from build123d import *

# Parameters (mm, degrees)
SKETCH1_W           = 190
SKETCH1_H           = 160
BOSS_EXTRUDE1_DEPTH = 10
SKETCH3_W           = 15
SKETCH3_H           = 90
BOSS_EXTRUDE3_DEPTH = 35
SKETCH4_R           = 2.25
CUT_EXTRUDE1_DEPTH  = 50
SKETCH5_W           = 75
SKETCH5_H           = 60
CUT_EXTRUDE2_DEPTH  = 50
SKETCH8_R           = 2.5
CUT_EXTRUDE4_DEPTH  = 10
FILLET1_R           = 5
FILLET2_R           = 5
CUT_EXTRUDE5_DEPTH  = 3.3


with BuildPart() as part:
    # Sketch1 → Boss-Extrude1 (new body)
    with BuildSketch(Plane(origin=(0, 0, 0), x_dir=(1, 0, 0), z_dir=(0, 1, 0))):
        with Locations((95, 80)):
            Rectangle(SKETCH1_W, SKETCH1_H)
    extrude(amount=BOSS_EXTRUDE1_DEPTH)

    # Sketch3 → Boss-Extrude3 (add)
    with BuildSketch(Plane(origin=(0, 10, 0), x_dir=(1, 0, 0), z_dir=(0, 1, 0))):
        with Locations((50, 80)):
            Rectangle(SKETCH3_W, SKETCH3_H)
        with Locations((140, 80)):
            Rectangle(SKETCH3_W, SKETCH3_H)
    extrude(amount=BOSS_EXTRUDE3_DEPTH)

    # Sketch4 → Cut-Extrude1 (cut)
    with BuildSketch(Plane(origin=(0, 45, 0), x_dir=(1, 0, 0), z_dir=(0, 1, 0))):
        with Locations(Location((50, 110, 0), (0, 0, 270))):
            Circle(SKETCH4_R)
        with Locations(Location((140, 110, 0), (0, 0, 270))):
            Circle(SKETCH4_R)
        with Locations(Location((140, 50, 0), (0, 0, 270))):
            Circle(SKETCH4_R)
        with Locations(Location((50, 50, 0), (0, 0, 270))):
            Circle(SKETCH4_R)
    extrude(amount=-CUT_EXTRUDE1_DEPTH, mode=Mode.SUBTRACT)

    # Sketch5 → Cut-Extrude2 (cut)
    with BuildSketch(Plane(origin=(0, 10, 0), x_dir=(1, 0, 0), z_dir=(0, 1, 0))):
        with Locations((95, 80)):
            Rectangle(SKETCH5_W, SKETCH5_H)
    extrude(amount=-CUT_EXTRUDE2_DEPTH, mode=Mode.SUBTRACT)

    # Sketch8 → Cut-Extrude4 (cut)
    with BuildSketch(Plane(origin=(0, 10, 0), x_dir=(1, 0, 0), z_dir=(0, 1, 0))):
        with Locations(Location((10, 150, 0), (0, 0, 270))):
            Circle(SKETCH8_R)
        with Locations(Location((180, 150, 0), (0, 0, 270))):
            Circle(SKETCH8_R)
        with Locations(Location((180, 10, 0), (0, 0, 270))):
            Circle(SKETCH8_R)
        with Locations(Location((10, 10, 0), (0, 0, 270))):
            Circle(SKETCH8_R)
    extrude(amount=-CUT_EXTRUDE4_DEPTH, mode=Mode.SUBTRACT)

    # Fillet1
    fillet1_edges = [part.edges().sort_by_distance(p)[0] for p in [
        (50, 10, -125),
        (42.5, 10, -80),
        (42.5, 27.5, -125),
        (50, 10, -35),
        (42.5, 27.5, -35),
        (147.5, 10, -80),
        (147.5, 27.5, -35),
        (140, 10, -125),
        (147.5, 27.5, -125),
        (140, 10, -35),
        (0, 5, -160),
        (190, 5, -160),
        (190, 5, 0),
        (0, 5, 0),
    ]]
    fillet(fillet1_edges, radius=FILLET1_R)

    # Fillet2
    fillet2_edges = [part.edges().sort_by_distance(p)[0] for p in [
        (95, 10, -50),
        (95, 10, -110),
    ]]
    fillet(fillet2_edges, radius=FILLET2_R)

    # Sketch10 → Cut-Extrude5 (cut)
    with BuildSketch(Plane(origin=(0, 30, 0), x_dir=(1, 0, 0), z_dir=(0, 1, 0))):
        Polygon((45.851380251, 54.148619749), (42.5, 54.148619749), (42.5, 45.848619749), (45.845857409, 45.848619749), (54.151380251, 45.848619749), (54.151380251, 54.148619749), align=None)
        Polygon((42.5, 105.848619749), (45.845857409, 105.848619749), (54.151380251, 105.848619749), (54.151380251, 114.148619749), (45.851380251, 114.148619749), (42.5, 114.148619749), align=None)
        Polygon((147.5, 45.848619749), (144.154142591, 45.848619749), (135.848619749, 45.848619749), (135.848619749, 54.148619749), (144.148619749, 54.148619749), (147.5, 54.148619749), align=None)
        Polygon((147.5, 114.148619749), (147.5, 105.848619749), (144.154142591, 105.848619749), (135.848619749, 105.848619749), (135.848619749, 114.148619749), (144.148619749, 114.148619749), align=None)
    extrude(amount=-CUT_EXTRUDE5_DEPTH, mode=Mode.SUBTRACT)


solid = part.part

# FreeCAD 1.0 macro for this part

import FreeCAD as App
import Part
import Sketcher

V = App.Vector
Q = App.Units.Quantity


def edges_at(feature, points):
    """Names of the edges that pass closest to the given points."""
    edges = feature.Shape.Edges
    near = lambda p: min(range(len(edges)), key=lambda i: edges[i].distToShape(Part.Vertex(*p))[0])
    return sorted({f"Edge{near(p) + 1}" for p in points})


def add_polygon(sketch, points):
    """Adds a closed chain of lines whose ends are joined by coincident constraints."""
    first, n = sketch.GeometryCount, len(points)
    for a, b in zip(points, points[1:] + points[:1]):
        sketch.addGeometry(Part.LineSegment(App.Vector(*a, 0), App.Vector(*b, 0)), False)
    for i in range(n):
        sketch.addConstraint(Sketcher.Constraint("Coincident", first + i, 2, first + (i + 1) % n, 1))

doc = App.newDocument("Part")
body = doc.addObject("PartDesign::Body", "Body")

sketch1 = doc.addObject("Sketcher::SketchObject", "Sketch")
body.addObject(sketch1)
sketch1.AttachmentSupport = (doc.XZ_Plane, [""])
sketch1.MapMode = "FlatFace"
add_polygon(sketch1, [(0, -160), (0, 0), (190, 0), (190, -160)])
sketch1.addConstraint(Sketcher.Constraint("Vertical", 0))
sketch1.addConstraint(Sketcher.Constraint("Horizontal", 1))
sketch1.addConstraint(Sketcher.Constraint("Vertical", 2))
sketch1.addConstraint(Sketcher.Constraint("Horizontal", 3))
sketch1.addConstraint(Sketcher.Constraint("Coincident", 0, 2, -1, 1))
sketch1.addConstraint(Sketcher.Constraint("DistanceX", 1, 1, 1, 2, Q("190 mm")))
sketch1.addConstraint(Sketcher.Constraint("DistanceY", 0, 1, 0, 2, Q("160 mm")))
pad1 = doc.addObject("PartDesign::Pad", "Pad")
body.addObject(pad1)
pad1.Profile = sketch1
pad1.Length = 10
pad1.Reversed = True

sketch2 = doc.addObject("Sketcher::SketchObject", "Sketch001")
body.addObject(sketch2)
sketch2.AttachmentSupport = (doc.XZ_Plane, [""])
sketch2.MapMode = "FlatFace"
sketch2.AttachmentOffset = App.Placement(V(0, 0, -10), App.Rotation())
add_polygon(sketch2, [(42, -125), (42, -35), (58, -35), (58, -125)])
add_polygon(sketch2, [(132, -125), (132, -35), (148, -35), (148, -125)])
sketch2.addConstraint(Sketcher.Constraint("Vertical", 0))
sketch2.addConstraint(Sketcher.Constraint("Horizontal", 1))
sketch2.addConstraint(Sketcher.Constraint("Vertical", 2))
sketch2.addConstraint(Sketcher.Constraint("Horizontal", 3))
sketch2.addConstraint(Sketcher.Constraint("Vertical", 4))
sketch2.addConstraint(Sketcher.Constraint("Horizontal", 5))
sketch2.addConstraint(Sketcher.Constraint("Vertical", 6))
sketch2.addConstraint(Sketcher.Constraint("Horizontal", 7))
sketch2.addConstraint(Sketcher.Constraint("Horizontal", 1, 2, 4, 2))
sketch2.addConstraint(Sketcher.Constraint("Horizontal", 3, 2, 6, 2))
sketch2.addConstraint(Sketcher.Constraint("Equal", 3, 5))
sketch2.addConstraint(Sketcher.Constraint("DistanceX", 1, 1, 1, 2, Q("15 mm")))
sketch2.addConstraint(Sketcher.Constraint("DistanceY", 0, 1, 0, 2, Q("90 mm")))
sketch2.addConstraint(Sketcher.Constraint("DistanceY", 0, 2, -1, 1, Q("35 mm")))
sketch2.addConstraint(Sketcher.Constraint("DistanceX", 1, 2, 4, 2, Q("75 mm")))
sketch2.addConstraint(Sketcher.Constraint("DistanceX", -1, 1, 0, 2, Q("42.5 mm")))
pad2 = doc.addObject("PartDesign::Pad", "Pad001")
body.addObject(pad2)
pad2.Profile = sketch2
pad2.Length = 35
pad2.Reversed = True

sketch3 = doc.addObject("Sketcher::SketchObject", "Sketch002")
body.addObject(sketch3)
sketch3.AttachmentSupport = (doc.XZ_Plane, [""])
sketch3.MapMode = "FlatFace"
sketch3.AttachmentOffset = App.Placement(V(0, 0, -45), App.Rotation())
sketch3.addGeometry(Part.Circle(V(50, -110, 0), V(0, 0, 1), 2.2), False)
sketch3.addGeometry(Part.Circle(V(140, -110, 0), V(0, 0, 1), 2.2), False)
sketch3.addGeometry(Part.Circle(V(140, -50, 0), V(0, 0, 1), 2.2), False)
sketch3.addGeometry(Part.Circle(V(50, -50, 0), V(0, 0, 1), 2.2), False)
sketch3.addConstraint(Sketcher.Constraint("Equal", 0, 1))
sketch3.addConstraint(Sketcher.Constraint("Equal", 1, 2))
sketch3.addConstraint(Sketcher.Constraint("Equal", 2, 3))
sketch3.addConstraint(Sketcher.Constraint("Horizontal", 0, 3, 1, 3))
sketch3.addConstraint(Sketcher.Constraint("Horizontal", 2, 3, 3, 3))
sketch3.addConstraint(Sketcher.Constraint("Vertical", 1, 3, 2, 3))
sketch3.addConstraint(Sketcher.Constraint("Vertical", 0, 3, 3, 3))
sketch3.addConstraint(Sketcher.Constraint("Diameter", 0, Q("4.5 mm")))
sketch3.addConstraint(Sketcher.Constraint("DistanceX", -1, 1, 0, 3, Q("50 mm")))
sketch3.addConstraint(Sketcher.Constraint("DistanceY", 0, 3, -1, 1, Q("110 mm")))
sketch3.addConstraint(Sketcher.Constraint("DistanceX", -1, 1, 1, 3, Q("140 mm")))
sketch3.addConstraint(Sketcher.Constraint("DistanceY", 2, 3, -1, 1, Q("50 mm")))
pocket1 = doc.addObject("PartDesign::Pocket", "Pocket")
body.addObject(pocket1)
pocket1.Profile = sketch3
pocket1.Length = 50
pocket1.Reversed = True

sketch4 = doc.addObject("Sketcher::SketchObject", "Sketch003")
body.addObject(sketch4)
sketch4.AttachmentSupport = (doc.XZ_Plane, [""])
sketch4.MapMode = "FlatFace"
sketch4.AttachmentOffset = App.Placement(V(0, 0, -10), App.Rotation())
add_polygon(sketch4, [(58, -110), (58, -50), (132, -50), (132, -110)])
sketch4.addConstraint(Sketcher.Constraint("Vertical", 0))
sketch4.addConstraint(Sketcher.Constraint("Horizontal", 1))
sketch4.addConstraint(Sketcher.Constraint("Vertical", 2))
sketch4.addConstraint(Sketcher.Constraint("Horizontal", 3))
sketch4.addConstraint(Sketcher.Constraint("DistanceX", 1, 1, 1, 2, Q("75 mm")))
sketch4.addConstraint(Sketcher.Constraint("DistanceY", 0, 1, 0, 2, Q("60 mm")))
sketch4.addConstraint(Sketcher.Constraint("DistanceY", 0, 2, -1, 1, Q("50 mm")))
sketch4.addConstraint(Sketcher.Constraint("DistanceX", -1, 1, 0, 2, Q("57.5 mm")))
pocket2 = doc.addObject("PartDesign::Pocket", "Pocket001")
body.addObject(pocket2)
pocket2.Profile = sketch4
pocket2.Length = 50
pocket2.Reversed = True

sketch5 = doc.addObject("Sketcher::SketchObject", "Sketch004")
body.addObject(sketch5)
sketch5.AttachmentSupport = (doc.XZ_Plane, [""])
sketch5.MapMode = "FlatFace"
sketch5.AttachmentOffset = App.Placement(V(0, 0, -10), App.Rotation())
sketch5.addGeometry(Part.Circle(V(10, -150, 0), V(0, 0, 1), 2.5), False)
sketch5.addGeometry(Part.Circle(V(180, -150, 0), V(0, 0, 1), 2.5), False)
sketch5.addGeometry(Part.Circle(V(180, -10, 0), V(0, 0, 1), 2.5), False)
sketch5.addGeometry(Part.Circle(V(10, -10, 0), V(0, 0, 1), 2.5), False)
sketch5.addConstraint(Sketcher.Constraint("Equal", 0, 1))
sketch5.addConstraint(Sketcher.Constraint("Equal", 1, 2))
sketch5.addConstraint(Sketcher.Constraint("Equal", 2, 3))
sketch5.addConstraint(Sketcher.Constraint("Horizontal", 0, 3, 1, 3))
sketch5.addConstraint(Sketcher.Constraint("Horizontal", 2, 3, 3, 3))
sketch5.addConstraint(Sketcher.Constraint("Vertical", 1, 3, 2, 3))
sketch5.addConstraint(Sketcher.Constraint("Vertical", 0, 3, 3, 3))
sketch5.addConstraint(Sketcher.Constraint("Diameter", 0, Q("5 mm")))
sketch5.addConstraint(Sketcher.Constraint("DistanceX", -1, 1, 0, 3, Q("10 mm")))
sketch5.addConstraint(Sketcher.Constraint("DistanceY", 0, 3, -1, 1, Q("150 mm")))
sketch5.addConstraint(Sketcher.Constraint("DistanceX", -1, 1, 1, 3, Q("180 mm")))
sketch5.addConstraint(Sketcher.Constraint("DistanceY", 2, 3, -1, 1, Q("10 mm")))
pocket3 = doc.addObject("PartDesign::Pocket", "Pocket002")
body.addObject(pocket3)
pocket3.Profile = sketch5
pocket3.Length = 10
pocket3.Reversed = True
doc.recompute()

fillet = doc.addObject("PartDesign::Fillet", "Fillet")
body.addObject(fillet)
fillet.Base = (pocket3, edges_at(pocket3, [
    (50, 10, -125),
    (42.5, 10, -80),
    (42.5, 27.5, -125),
    (50, 10, -35),
    (42.5, 27.5, -35),
    (147.5, 10, -80),
    (147.5, 27.5, -35),
    (140, 10, -125),
    (147.5, 27.5, -125),
    (140, 10, -35),
    (0, 5, -160),
    (190, 5, -160),
    (190, 5, 0),
    (0, 5, 0),
]))
fillet.Radius = 5
doc.recompute()

fillet2 = doc.addObject("PartDesign::Fillet", "Fillet001")
body.addObject(fillet2)
fillet2.Base = (fillet, edges_at(fillet, [(95, 10, -50), (95, 10, -110)]))
fillet2.Radius = 5

sketch6 = doc.addObject("Sketcher::SketchObject", "Sketch005")
body.addObject(sketch6)
sketch6.AttachmentSupport = (doc.XZ_Plane, [""])
sketch6.MapMode = "FlatFace"
sketch6.AttachmentOffset = App.Placement(V(0, 0, -30), App.Rotation())
add_polygon(sketch6, [(42, -54), (42, -46), (54, -46), (54, -54)])
add_polygon(sketch6, [(42, -106), (54, -106), (54, -114), (42, -114)])
add_polygon(sketch6, [(136, -46), (148, -46), (148, -54), (136, -54)])
add_polygon(sketch6, [(148, -106), (148, -114), (136, -114), (136, -106)])
sketch6.addConstraint(Sketcher.Constraint("Vertical", 0))
sketch6.addConstraint(Sketcher.Constraint("Horizontal", 1))
sketch6.addConstraint(Sketcher.Constraint("Vertical", 2))
sketch6.addConstraint(Sketcher.Constraint("Horizontal", 3))
sketch6.addConstraint(Sketcher.Constraint("Horizontal", 4))
sketch6.addConstraint(Sketcher.Constraint("Vertical", 5))
sketch6.addConstraint(Sketcher.Constraint("Horizontal", 6))
sketch6.addConstraint(Sketcher.Constraint("Vertical", 7))
sketch6.addConstraint(Sketcher.Constraint("Horizontal", 8))
sketch6.addConstraint(Sketcher.Constraint("Vertical", 9))
sketch6.addConstraint(Sketcher.Constraint("Horizontal", 10))
sketch6.addConstraint(Sketcher.Constraint("Vertical", 11))
sketch6.addConstraint(Sketcher.Constraint("Vertical", 12))
sketch6.addConstraint(Sketcher.Constraint("Horizontal", 13))
sketch6.addConstraint(Sketcher.Constraint("Vertical", 14))
sketch6.addConstraint(Sketcher.Constraint("Horizontal", 15))
sketch6.addConstraint(Sketcher.Constraint("Horizontal", 1, 2, 8, 2))
sketch6.addConstraint(Sketcher.Constraint("Horizontal", 3, 2, 9, 2))
sketch6.addConstraint(Sketcher.Constraint("Horizontal", 6, 2, 12, 2))
sketch6.addConstraint(Sketcher.Constraint("Horizontal", 7, 2, 14, 2))
sketch6.addConstraint(Sketcher.Constraint("Vertical", 2, 2, 4, 2))
sketch6.addConstraint(Sketcher.Constraint("Vertical", 3, 2, 6, 2))
sketch6.addConstraint(Sketcher.Constraint("Vertical", 9, 2, 12, 2))
sketch6.addConstraint(Sketcher.Constraint("Vertical", 11, 2, 13, 2))
sketch6.addConstraint(Sketcher.Constraint("Equal", 6, 8))
sketch6.addConstraint(Sketcher.Constraint("Equal", 2, 5))
sketch6.addConstraint(Sketcher.Constraint("DistanceY", 0, 1, 0, 2, Q("8.3 mm")))
sketch6.addConstraint(Sketcher.Constraint("DistanceY", 4, 2, 1, 2, Q("60 mm")))
sketch6.addConstraint(Sketcher.Constraint("DistanceX", 0, 2, 8, 2, Q("105 mm")))
sketch6.addConstraint(Sketcher.Constraint("DistanceX", -1, 1, 0, 2, Q("42.5 mm")))
sketch6.addConstraint(Sketcher.Constraint("DistanceX", 1, 1, 1, 2, Q("11.65138 mm")))
sketch6.addConstraint(Sketcher.Constraint("DistanceY", 0, 2, -1, 1, Q("45.84862 mm")))
pocket4 = doc.addObject("PartDesign::Pocket", "Pocket003")
body.addObject(pocket4)
pocket4.Profile = sketch6
pocket4.Length = 3.3
pocket4.Reversed = True

doc.recompute()
